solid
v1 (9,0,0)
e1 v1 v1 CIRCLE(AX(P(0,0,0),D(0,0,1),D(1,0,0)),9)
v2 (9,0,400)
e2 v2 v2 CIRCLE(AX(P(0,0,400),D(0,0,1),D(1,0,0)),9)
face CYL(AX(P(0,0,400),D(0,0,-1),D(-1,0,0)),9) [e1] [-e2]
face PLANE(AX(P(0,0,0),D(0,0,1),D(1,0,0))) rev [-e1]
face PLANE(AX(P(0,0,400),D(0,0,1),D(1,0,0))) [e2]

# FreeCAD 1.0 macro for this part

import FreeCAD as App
import Part
import Sketcher
Q = App.Units.Quantity

doc = App.newDocument("Part")
body = doc.addObject("PartDesign::Body", "Body")

# Sketch on XY plane
sketch1 = body.newObject("Sketcher::SketchObject", "Sketch")
sketch1.AttachmentSupport = (doc.getObject("XY_Plane"), [""])
sketch1.MapMode = "FlatFace"
sketch1.addGeometry(Part.Circle(App.Vector(0, 0, 0), App.Vector(0, 0, 1), 9), False)
sketch1.addConstraint([
    Sketcher.Constraint("Coincident", 0, 3, -1, 1),
    Sketcher.Constraint("Diameter", 0, Q("18 mm")),
])
pad1 = body.newObject("PartDesign::Pad", "Pad")
pad1.Profile = sketch1
pad1.Length = 400

doc.recompute()
